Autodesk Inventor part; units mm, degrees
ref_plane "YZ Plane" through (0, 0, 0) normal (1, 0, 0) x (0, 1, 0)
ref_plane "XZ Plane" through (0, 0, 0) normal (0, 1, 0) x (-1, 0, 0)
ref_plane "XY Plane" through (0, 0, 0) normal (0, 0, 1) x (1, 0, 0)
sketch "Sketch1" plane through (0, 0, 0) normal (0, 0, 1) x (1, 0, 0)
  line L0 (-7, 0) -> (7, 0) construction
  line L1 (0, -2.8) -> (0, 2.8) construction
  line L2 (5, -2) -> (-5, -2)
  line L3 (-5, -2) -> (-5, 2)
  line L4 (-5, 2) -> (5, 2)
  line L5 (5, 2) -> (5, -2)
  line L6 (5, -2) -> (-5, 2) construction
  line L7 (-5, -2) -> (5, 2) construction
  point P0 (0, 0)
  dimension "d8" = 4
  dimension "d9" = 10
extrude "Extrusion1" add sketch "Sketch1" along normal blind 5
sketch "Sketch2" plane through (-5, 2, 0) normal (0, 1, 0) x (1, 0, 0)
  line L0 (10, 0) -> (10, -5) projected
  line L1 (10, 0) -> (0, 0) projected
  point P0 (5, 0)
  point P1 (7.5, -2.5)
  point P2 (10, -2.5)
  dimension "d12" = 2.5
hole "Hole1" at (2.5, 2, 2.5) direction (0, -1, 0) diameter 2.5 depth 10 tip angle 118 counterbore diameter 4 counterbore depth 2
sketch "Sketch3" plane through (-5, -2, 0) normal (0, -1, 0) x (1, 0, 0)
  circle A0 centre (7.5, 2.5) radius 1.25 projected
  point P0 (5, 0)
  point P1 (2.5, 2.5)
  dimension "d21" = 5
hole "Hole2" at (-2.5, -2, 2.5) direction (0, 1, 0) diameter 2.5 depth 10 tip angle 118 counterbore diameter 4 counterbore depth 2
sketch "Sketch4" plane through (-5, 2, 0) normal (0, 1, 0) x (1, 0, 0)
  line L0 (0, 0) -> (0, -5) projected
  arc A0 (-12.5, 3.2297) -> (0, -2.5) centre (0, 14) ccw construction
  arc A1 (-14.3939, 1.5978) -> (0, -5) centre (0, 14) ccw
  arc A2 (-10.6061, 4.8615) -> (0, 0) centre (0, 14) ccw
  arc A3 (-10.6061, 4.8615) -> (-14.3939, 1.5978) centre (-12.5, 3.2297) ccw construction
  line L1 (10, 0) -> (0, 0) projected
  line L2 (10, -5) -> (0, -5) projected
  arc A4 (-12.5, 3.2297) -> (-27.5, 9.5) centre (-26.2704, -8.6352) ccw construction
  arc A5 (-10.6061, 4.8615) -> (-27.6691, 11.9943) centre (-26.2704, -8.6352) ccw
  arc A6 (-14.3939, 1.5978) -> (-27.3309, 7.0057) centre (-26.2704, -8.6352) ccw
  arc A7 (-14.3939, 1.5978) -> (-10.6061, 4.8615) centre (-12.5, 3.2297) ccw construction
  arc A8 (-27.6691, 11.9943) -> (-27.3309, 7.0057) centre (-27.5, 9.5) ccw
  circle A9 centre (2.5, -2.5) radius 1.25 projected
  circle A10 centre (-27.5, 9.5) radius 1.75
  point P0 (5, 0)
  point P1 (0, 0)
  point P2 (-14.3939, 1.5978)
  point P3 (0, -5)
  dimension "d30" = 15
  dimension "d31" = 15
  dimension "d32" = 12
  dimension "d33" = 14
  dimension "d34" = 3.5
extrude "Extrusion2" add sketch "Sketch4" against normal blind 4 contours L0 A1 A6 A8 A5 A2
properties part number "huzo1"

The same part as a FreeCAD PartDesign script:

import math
import FreeCAD as App
import Part
import Sketcher

V = App.Vector

doc = App.newDocument("Part")
body = doc.addObject("PartDesign::Body", "Body")

# Sketch on XY plane
sketch1 = body.newObject("Sketcher::SketchObject", "Sketch")
sketch1.AttachmentSupport = (doc.getObject("XY_Plane"), [""])
sketch1.MapMode = "FlatFace"
sketch1.addGeometry([
    Part.LineSegment(V(-5, -2, 0), V(5, -2, 0)),
    Part.LineSegment(V(5, -2, 0), V(5, 2, 0)),
    Part.LineSegment(V(5, 2, 0), V(-5, 2, 0)),
    Part.LineSegment(V(-5, 2, 0), V(-5, -2, 0)),
], False)
sketch1.addConstraint([
    Sketcher.Constraint("Coincident", 0, 2, 1, 1),
    Sketcher.Constraint("Coincident", 1, 2, 2, 1),
    Sketcher.Constraint("Coincident", 2, 2, 3, 1),
    Sketcher.Constraint("Coincident", 3, 2, 0, 1),
    Sketcher.Constraint("Horizontal", 0),
    Sketcher.Constraint("Vertical", 1),
    Sketcher.Constraint("Horizontal", 2),
    Sketcher.Constraint("Vertical", 3),
    Sketcher.Constraint("Symmetric", 0, 2, 2, 2, -1, 1),
    Sketcher.Constraint("DistanceX", 0, 1, 0, 2, 10.0),
    Sketcher.Constraint("DistanceY", 1, 1, 1, 2, 4.0),
])
pad1 = body.newObject("PartDesign::Pad", "Pad")
pad1.Profile = sketch1
pad1.Length = 5

# Sketch on XZ plane
sketch2 = body.newObject("Sketcher::SketchObject", "Sketch001")
sketch2.AttachmentSupport = (doc.getObject("XZ_Plane"), [""])
sketch2.MapMode = "FlatFace"
sketch2.AttachmentOffset = App.Placement(V(0, 0, -2), App.Rotation())
sketch2.addGeometry(Part.Circle(V(2.5, 2.5, 0), V(0, 0, 1), 1.2), False)
sketch2.addConstraint([
    Sketcher.Constraint("Diameter", 0, 2.5),
    Sketcher.Constraint("DistanceX", -1, 1, 0, 3, 2.5),
    Sketcher.Constraint("DistanceY", -1, 1, 0, 3, 2.5),
])
doc.recompute()
hole = body.newObject("PartDesign::Hole", "Hole")
hole.Profile = sketch2
hole.ThreadType = "None"
hole.Diameter = 2.5
hole.DepthType = "Dimension"
hole.Depth = 10
hole.DrillPoint = "Angled"
hole.DrillPointAngle = 118
hole.HoleCutType = "Counterbore"
hole.HoleCutDiameter = 4
hole.HoleCutDepth = 2
hole.Reversed = True

# Sketch on XZ plane
sketch3 = body.newObject("Sketcher::SketchObject", "Sketch002")
sketch3.AttachmentSupport = (doc.getObject("XZ_Plane"), [""])
sketch3.MapMode = "FlatFace"
sketch3.AttachmentOffset = App.Placement(V(0, 0, 2), App.Rotation())
sketch3.addGeometry(Part.Circle(V(-2.5, 2.5, 0), V(0, 0, 1), 1.2), False)
sketch3.addConstraint([
    Sketcher.Constraint("Diameter", 0, 2.5),
    Sketcher.Constraint("DistanceX", 0, 3, -1, 1, 2.5),
    Sketcher.Constraint("DistanceY", -1, 1, 0, 3, 2.5),
])
doc.recompute()
hole2 = body.newObject("PartDesign::Hole", "Hole001")
hole2.Profile = sketch3
hole2.ThreadType = "None"
hole2.Diameter = 2.5
hole2.DepthType = "Dimension"
hole2.Depth = 10
hole2.DrillPoint = "Angled"
hole2.DrillPointAngle = 118
hole2.HoleCutType = "Counterbore"
hole2.HoleCutDiameter = 4
hole2.HoleCutDepth = 2

# Sketch on XZ plane
sketch4 = body.newObject("Sketcher::SketchObject", "Sketch003")
sketch4.AttachmentSupport = (doc.getObject("XZ_Plane"), [""])
sketch4.MapMode = "FlatFace"
sketch4.AttachmentOffset = App.Placement(V(0, 0, -2), App.Rotation())
sketch4.addGeometry([
    Part.LineSegment(V(-5, 5, 0), V(-5, 0, 0)),  # 0
    Part.ArcOfCircle(Part.Circle(V(-5, -14, 0), V(0, 0, 1), 14), math.radians(90), math.radians(139)),  # 1
    Part.ArcOfCircle(Part.Circle(V(-31.3, 8.6, 0), V(0, 0, 1), 20.7), math.radians(-94), math.radians(-41)),  # 2
    Part.ArcOfCircle(Part.Circle(V(-32.5, -9.5, 0), V(0, 0, 1), 2.5), math.radians(86), math.radians(266)),  # 3
    Part.ArcOfCircle(Part.Circle(V(-31.3, 8.6, 0), V(0, 0, 1), 15.7), math.radians(-94), math.radians(-41)),  # 4
    Part.ArcOfCircle(Part.Circle(V(-5, -14, 0), V(0, 0, 1), 19), math.radians(90), math.radians(139)),  # 5
    Part.Circle(V(-32.5, -9.5, 0), V(0, 0, 1), 1.8),  # 6
], False)
sketch4.addConstraint([
    Sketcher.Constraint("Coincident", 0, 2, 1, 1),
    Sketcher.Constraint("Tangent", 1, 2, 2, 2),
    Sketcher.Constraint("Tangent", 2, 1, 3, 2),
    Sketcher.Constraint("Tangent", 3, 1, 4, 1),
    Sketcher.Constraint("Tangent", 4, 2, 5, 2),
    Sketcher.Constraint("Coincident", 5, 1, 0, 1),
    Sketcher.Constraint("Vertical", 0),
    Sketcher.Constraint("Coincident", 4, 3, 2, 3),
    Sketcher.Constraint("Coincident", 5, 3, 1, 3),
    Sketcher.Constraint("Coincident", 6, 3, 3, 3),
    Sketcher.Constraint("PointOnObject", 0, 2, -1),
    Sketcher.Constraint("Vertical", 5, 3, 0, 2),
    Sketcher.Constraint("Radius", 1, 14.0),
    Sketcher.Constraint("Diameter", 6, 3.5),
    Sketcher.Constraint("Radius", 5, 19.0),
    Sketcher.Constraint("DistanceX", 1, 3, -1, 1, 5.0),
    Sketcher.Constraint("Radius", 4, 15.677),
    Sketcher.Constraint("DistanceX", 3, 3, -1, 1, 32.5),
    Sketcher.Constraint("DistanceY", 3, 3, -1, 1, 9.5),
])
pad2 = body.newObject("PartDesign::Pad", "Pad001")
pad2.Profile = sketch4
pad2.Length = 4

doc.recompute()
